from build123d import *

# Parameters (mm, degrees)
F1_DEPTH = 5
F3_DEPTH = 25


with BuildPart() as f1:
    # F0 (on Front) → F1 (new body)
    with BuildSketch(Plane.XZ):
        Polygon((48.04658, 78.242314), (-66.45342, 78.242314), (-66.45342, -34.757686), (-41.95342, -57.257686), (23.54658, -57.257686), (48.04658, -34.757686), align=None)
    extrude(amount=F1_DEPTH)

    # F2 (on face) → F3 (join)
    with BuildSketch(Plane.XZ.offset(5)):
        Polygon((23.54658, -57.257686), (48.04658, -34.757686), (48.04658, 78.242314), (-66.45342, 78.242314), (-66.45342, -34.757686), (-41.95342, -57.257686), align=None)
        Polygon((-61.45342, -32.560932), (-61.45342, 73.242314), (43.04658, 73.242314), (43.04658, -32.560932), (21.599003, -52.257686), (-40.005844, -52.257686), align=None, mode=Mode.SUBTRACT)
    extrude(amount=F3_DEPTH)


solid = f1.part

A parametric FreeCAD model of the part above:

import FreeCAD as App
import Part
import Sketcher
from FreeCAD import Vector

doc = App.newDocument("Part")
params = doc.addObject("Spreadsheet::Sheet", "Params")
for row, (alias, value) in enumerate([
    ("sketch1_height", "113 mm"),
    ("sketch1_width", "114.5 mm"),
    ("sketch1_width2", "65.5 mm"),
    ("pad1_length", "5 mm"),
    ("sketch2_height", "113 mm"),
    ("sketch2_width", "114.5 mm"),
    ("sketch2_width2", "65.5 mm"),
    ("sketch2_width3", "104.5 mm"),
    ("pad2_length", "25 mm"),
], start=1):
    params.set(f"A{row}", alias)
    params.set(f"B{row}", "=" + value)
    params.setAlias(f"B{row}", alias)

body = doc.addObject("PartDesign::Body", "Body")

# Sketch on XZ plane
sketch1 = doc.addObject("Sketcher::SketchObject", "Sketch")
body.addObject(sketch1)
sketch1.AttachmentSupport = (doc.XZ_Plane, [""])
sketch1.MapMode = "FlatFace"
sketch1.addGeometry([
    Part.LineSegment(Vector(48.04658, 78.242314, 0), Vector(-66.45342, 78.242314, 0)),  # 0
    Part.LineSegment(Vector(-66.45342, 78.242314, 0), Vector(-66.45342, -34.757686, 0)),  # 1
    Part.LineSegment(Vector(-66.45342, -34.757686, 0), Vector(-41.95342, -57.257686, 0)),  # 2
    Part.LineSegment(Vector(-41.95342, -57.257686, 0), Vector(23.54658, -57.257686, 0)),  # 3
    Part.LineSegment(Vector(23.54658, -57.257686, 0), Vector(48.04658, -34.757686, 0)),  # 4
    Part.LineSegment(Vector(48.04658, -34.757686, 0), Vector(48.04658, 78.242314, 0)),  # 5
], False)
sketch1.addConstraint([
    Sketcher.Constraint("Coincident", 0, 2, 1, 1),
    Sketcher.Constraint("Coincident", 1, 2, 2, 1),
    Sketcher.Constraint("Coincident", 2, 2, 3, 1),
    Sketcher.Constraint("Coincident", 3, 2, 4, 1),
    Sketcher.Constraint("Coincident", 4, 2, 5, 1),
    Sketcher.Constraint("Coincident", 5, 2, 0, 1),
    Sketcher.Constraint("Horizontal", 0),
    Sketcher.Constraint("Vertical", 1),
    Sketcher.Constraint("Horizontal", 3),
    Sketcher.Constraint("Vertical", 5),
    Sketcher.Constraint("Horizontal", 1, 2, 4, 2),
    Sketcher.Constraint("Equal", 2, 4),
    Sketcher.Constraint("DistanceY", 1, 2, 1, 1, 113.0),
    Sketcher.Constraint("DistanceX", 0, 2, 0, 1, 114.5),
    Sketcher.Constraint("DistanceX", 3, 1, 3, 2, 65.5),
    Sketcher.Constraint("DistanceY", 2, 2, 1, 2, 22.5),
    Sketcher.Constraint("DistanceX", 0, 2, -1, 1, 66.45342),
    Sketcher.Constraint("DistanceY", -1, 1, 0, 2, 78.242314),
])
sketch1.setExpression("Constraints[12]", "Params.sketch1_height")
sketch1.setExpression("Constraints[13]", "Params.sketch1_width")
sketch1.setExpression("Constraints[14]", "Params.sketch1_width2")
pad1 = doc.addObject("PartDesign::Pad", "Pad")
body.addObject(pad1)
pad1.Profile = sketch1
pad1.setExpression("Length", "Params.pad1_length")

# Sketch on XZ plane
sketch2 = doc.addObject("Sketcher::SketchObject", "Sketch001")
body.addObject(sketch2)
sketch2.AttachmentSupport = (doc.XZ_Plane, [""])
sketch2.MapMode = "FlatFace"
sketch2.AttachmentOffset = App.Placement(Vector(0, 0, 5), App.Rotation())
sketch2.addGeometry([
    Part.LineSegment(Vector(23.54658, -57.257686, 0), Vector(48.04658, -34.757686, 0)),  # 0
    Part.LineSegment(Vector(48.04658, -34.757686, 0), Vector(48.04658, 78.242314, 0)),  # 1
    Part.LineSegment(Vector(48.04658, 78.242314, 0), Vector(-66.45342, 78.242314, 0)),  # 2
    Part.LineSegment(Vector(-66.45342, 78.242314, 0), Vector(-66.45342, -34.757686, 0)),  # 3
    Part.LineSegment(Vector(-66.45342, -34.757686, 0), Vector(-41.95342, -57.257686, 0)),  # 4
    Part.LineSegment(Vector(-41.95342, -57.257686, 0), Vector(23.54658, -57.257686, 0)),  # 5
    Part.LineSegment(Vector(-40.005844, -52.257686, 0), Vector(-61.45342, -32.560932, 0)),  # 6
    Part.LineSegment(Vector(-61.45342, -32.560932, 0), Vector(-61.45342, 73.242314, 0)),  # 7
    Part.LineSegment(Vector(-61.45342, 73.242314, 0), Vector(43.04658, 73.242314, 0)),  # 8
    Part.LineSegment(Vector(43.04658, 73.242314, 0), Vector(43.04658, -32.560932, 0)),  # 9
    Part.LineSegment(Vector(43.04658, -32.560932, 0), Vector(21.599003, -52.257686, 0)),  # 10
    Part.LineSegment(Vector(21.599003, -52.257686, 0), Vector(-40.005844, -52.257686, 0)),  # 11
], False)
sketch2.addConstraint([
    Sketcher.Constraint("Coincident", 0, 2, 1, 1),
    Sketcher.Constraint("Coincident", 1, 2, 2, 1),
    Sketcher.Constraint("Coincident", 2, 2, 3, 1),
    Sketcher.Constraint("Coincident", 3, 2, 4, 1),
    Sketcher.Constraint("Coincident", 4, 2, 5, 1),
    Sketcher.Constraint("Coincident", 5, 2, 0, 1),
    Sketcher.Constraint("Coincident", 6, 2, 7, 1),
    Sketcher.Constraint("Coincident", 7, 2, 8, 1),
    Sketcher.Constraint("Coincident", 8, 2, 9, 1),
    Sketcher.Constraint("Coincident", 9, 2, 10, 1),
    Sketcher.Constraint("Coincident", 10, 2, 11, 1),
    Sketcher.Constraint("Coincident", 11, 2, 6, 1),
    Sketcher.Constraint("Vertical", 1),
    Sketcher.Constraint("Horizontal", 2),
    Sketcher.Constraint("Vertical", 3),
    Sketcher.Constraint("Horizontal", 5),
    Sketcher.Constraint("Vertical", 7),
    Sketcher.Constraint("Horizontal", 8),
    Sketcher.Constraint("Vertical", 9),
    Sketcher.Constraint("Horizontal", 11),
    Sketcher.Constraint("Parallel", 4, 6),
    Sketcher.Constraint("Parallel", 0, 10),
    Sketcher.Constraint("Horizontal", 0, 2, 3, 2),
    Sketcher.Constraint("Horizontal", 6, 2, 9, 2),
    Sketcher.Constraint("Equal", 0, 4),
    Sketcher.Constraint("DistanceY", 1, 1, 1, 2, 113.0),
    Sketcher.Constraint("DistanceX", 2, 2, 2, 1, 114.5),
    Sketcher.Constraint("DistanceX", 5, 1, 5, 2, 65.5),
    Sketcher.Constraint("DistanceX", 8, 1, 8, 2, 104.5),
    Sketcher.Constraint("DistanceX", 3, 2, 6, 2, 5.0),
    Sketcher.Constraint("DistanceY", 7, 2, 2, 2, 5.0),
    Sketcher.Constraint("DistanceY", 5, 2, 10, 2, 5.0),
    Sketcher.Constraint("DistanceY", 4, 2, 3, 2, 22.5),
    Sketcher.Constraint("DistanceX", 11, 2, 11, 1, 61.604847),
    Sketcher.Constraint("DistanceX", -1, 1, 0, 2, 48.04658),
    Sketcher.Constraint("DistanceY", 0, 2, -1, 1, 34.757686),
])
sketch2.setExpression("Constraints[25]", "Params.sketch2_height")
sketch2.setExpression("Constraints[26]", "Params.sketch2_width")
sketch2.setExpression("Constraints[27]", "Params.sketch2_width2")
sketch2.setExpression("Constraints[28]", "Params.sketch2_width3")
pad2 = doc.addObject("PartDesign::Pad", "Pad001")
body.addObject(pad2)
pad2.Profile = sketch2
pad2.setExpression("Length", "Params.pad2_length")

doc.recompute()
